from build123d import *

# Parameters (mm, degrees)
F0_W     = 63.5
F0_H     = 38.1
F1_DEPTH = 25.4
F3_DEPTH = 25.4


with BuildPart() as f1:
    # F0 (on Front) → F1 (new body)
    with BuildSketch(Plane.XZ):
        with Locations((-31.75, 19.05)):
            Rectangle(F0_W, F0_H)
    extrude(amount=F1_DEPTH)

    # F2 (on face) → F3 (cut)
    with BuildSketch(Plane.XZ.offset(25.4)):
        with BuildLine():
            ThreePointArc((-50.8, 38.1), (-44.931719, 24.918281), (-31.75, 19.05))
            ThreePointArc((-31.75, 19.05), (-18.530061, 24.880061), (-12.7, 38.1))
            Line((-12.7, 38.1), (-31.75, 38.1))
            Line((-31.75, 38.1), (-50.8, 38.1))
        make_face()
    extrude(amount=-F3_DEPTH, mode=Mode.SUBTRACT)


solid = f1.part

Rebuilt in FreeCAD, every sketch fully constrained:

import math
import FreeCAD as App
import Part
import Sketcher
Q = App.Units.Quantity


def add_polygon(sketch, points):
    """Adds a closed chain of lines whose ends are joined by coincident constraints."""
    first, n = sketch.GeometryCount, len(points)
    for a, b in zip(points, points[1:] + points[:1]):
        sketch.addGeometry(Part.LineSegment(App.Vector(*a, 0), App.Vector(*b, 0)), False)
    for i in range(n):
        sketch.addConstraint(Sketcher.Constraint("Coincident", first + i, 2, first + (i + 1) % n, 1))

doc = App.newDocument("Part")
body = doc.addObject("PartDesign::Body", "Body")

sketch1 = body.newObject("Sketcher::SketchObject", "Sketch")
sketch1.AttachmentSupport = (doc.getObject("XZ_Plane"), [""])
sketch1.MapMode = "FlatFace"
add_polygon(sketch1, [(-64, 38), (-64, 0), (0, 0), (0, 38)])
sketch1.addConstraint([
    Sketcher.Constraint("Vertical", 0),
    Sketcher.Constraint("Horizontal", 1),
    Sketcher.Constraint("Vertical", 2),
    Sketcher.Constraint("Horizontal", 3),
    Sketcher.Constraint("Coincident", 1, 2, -1, 1),
    Sketcher.Constraint("DistanceX", 1, 1, 1, 2, Q("2.5 in")),
    Sketcher.Constraint("DistanceY", 0, 2, 0, 1, Q("1.5 in")),
])
pad1 = body.newObject("PartDesign::Pad", "Pad")
pad1.Profile = sketch1
pad1.Length = Q("1 in")

sketch2 = body.newObject("Sketcher::SketchObject", "Sketch001")
sketch2.AttachmentSupport = (doc.getObject("XZ_Plane"), [""])
sketch2.MapMode = "FlatFace"
sketch2.AttachmentOffset = App.Placement(App.Vector(0, 0, 1 * 25.4), App.Rotation())
sketch2.addGeometry([
    Part.ArcOfCircle(Part.Circle(App.Vector(-31, 39, 0), App.Vector(0, 0, 1), 20), math.radians(-177), math.radians(-93)),
    Part.ArcOfCircle(Part.Circle(App.Vector(-33, 39, 0), App.Vector(0, 0, 1), 20), math.radians(-87), math.radians(-3)),
    Part.LineSegment(App.Vector(-13, 38, 0), App.Vector(-51, 38, 0)),
], False)
sketch2.addConstraint([
    Sketcher.Constraint("Coincident", 0, 2, 1, 1),
    Sketcher.Constraint("Coincident", 1, 2, 2, 1),
    Sketcher.Constraint("Coincident", 2, 2, 0, 1),
    Sketcher.Constraint("Horizontal", 2),
    Sketcher.Constraint("DistanceX", 2, 2, 2, 1, Q("1.5 in")),
    Sketcher.Constraint("DistanceX", 2, 2, -1, 1, Q("2 in")),
    Sketcher.Constraint("DistanceY", -1, 1, 1, 2, Q("1.5 in")),
    Sketcher.Constraint("DistanceX", 0, 2, -1, 1, Q("1.25 in")),
    Sketcher.Constraint("DistanceY", -1, 1, 0, 2, Q("0.75 in")),
    Sketcher.Constraint("Radius", 0, Q("20.129479 mm")),
    Sketcher.Constraint("Radius", 1, Q("19.975034 mm")),
])
pocket1 = body.newObject("PartDesign::Pocket", "Pocket")
pocket1.Profile = sketch2
pocket1.Length = Q("1 in")

doc.recompute()
